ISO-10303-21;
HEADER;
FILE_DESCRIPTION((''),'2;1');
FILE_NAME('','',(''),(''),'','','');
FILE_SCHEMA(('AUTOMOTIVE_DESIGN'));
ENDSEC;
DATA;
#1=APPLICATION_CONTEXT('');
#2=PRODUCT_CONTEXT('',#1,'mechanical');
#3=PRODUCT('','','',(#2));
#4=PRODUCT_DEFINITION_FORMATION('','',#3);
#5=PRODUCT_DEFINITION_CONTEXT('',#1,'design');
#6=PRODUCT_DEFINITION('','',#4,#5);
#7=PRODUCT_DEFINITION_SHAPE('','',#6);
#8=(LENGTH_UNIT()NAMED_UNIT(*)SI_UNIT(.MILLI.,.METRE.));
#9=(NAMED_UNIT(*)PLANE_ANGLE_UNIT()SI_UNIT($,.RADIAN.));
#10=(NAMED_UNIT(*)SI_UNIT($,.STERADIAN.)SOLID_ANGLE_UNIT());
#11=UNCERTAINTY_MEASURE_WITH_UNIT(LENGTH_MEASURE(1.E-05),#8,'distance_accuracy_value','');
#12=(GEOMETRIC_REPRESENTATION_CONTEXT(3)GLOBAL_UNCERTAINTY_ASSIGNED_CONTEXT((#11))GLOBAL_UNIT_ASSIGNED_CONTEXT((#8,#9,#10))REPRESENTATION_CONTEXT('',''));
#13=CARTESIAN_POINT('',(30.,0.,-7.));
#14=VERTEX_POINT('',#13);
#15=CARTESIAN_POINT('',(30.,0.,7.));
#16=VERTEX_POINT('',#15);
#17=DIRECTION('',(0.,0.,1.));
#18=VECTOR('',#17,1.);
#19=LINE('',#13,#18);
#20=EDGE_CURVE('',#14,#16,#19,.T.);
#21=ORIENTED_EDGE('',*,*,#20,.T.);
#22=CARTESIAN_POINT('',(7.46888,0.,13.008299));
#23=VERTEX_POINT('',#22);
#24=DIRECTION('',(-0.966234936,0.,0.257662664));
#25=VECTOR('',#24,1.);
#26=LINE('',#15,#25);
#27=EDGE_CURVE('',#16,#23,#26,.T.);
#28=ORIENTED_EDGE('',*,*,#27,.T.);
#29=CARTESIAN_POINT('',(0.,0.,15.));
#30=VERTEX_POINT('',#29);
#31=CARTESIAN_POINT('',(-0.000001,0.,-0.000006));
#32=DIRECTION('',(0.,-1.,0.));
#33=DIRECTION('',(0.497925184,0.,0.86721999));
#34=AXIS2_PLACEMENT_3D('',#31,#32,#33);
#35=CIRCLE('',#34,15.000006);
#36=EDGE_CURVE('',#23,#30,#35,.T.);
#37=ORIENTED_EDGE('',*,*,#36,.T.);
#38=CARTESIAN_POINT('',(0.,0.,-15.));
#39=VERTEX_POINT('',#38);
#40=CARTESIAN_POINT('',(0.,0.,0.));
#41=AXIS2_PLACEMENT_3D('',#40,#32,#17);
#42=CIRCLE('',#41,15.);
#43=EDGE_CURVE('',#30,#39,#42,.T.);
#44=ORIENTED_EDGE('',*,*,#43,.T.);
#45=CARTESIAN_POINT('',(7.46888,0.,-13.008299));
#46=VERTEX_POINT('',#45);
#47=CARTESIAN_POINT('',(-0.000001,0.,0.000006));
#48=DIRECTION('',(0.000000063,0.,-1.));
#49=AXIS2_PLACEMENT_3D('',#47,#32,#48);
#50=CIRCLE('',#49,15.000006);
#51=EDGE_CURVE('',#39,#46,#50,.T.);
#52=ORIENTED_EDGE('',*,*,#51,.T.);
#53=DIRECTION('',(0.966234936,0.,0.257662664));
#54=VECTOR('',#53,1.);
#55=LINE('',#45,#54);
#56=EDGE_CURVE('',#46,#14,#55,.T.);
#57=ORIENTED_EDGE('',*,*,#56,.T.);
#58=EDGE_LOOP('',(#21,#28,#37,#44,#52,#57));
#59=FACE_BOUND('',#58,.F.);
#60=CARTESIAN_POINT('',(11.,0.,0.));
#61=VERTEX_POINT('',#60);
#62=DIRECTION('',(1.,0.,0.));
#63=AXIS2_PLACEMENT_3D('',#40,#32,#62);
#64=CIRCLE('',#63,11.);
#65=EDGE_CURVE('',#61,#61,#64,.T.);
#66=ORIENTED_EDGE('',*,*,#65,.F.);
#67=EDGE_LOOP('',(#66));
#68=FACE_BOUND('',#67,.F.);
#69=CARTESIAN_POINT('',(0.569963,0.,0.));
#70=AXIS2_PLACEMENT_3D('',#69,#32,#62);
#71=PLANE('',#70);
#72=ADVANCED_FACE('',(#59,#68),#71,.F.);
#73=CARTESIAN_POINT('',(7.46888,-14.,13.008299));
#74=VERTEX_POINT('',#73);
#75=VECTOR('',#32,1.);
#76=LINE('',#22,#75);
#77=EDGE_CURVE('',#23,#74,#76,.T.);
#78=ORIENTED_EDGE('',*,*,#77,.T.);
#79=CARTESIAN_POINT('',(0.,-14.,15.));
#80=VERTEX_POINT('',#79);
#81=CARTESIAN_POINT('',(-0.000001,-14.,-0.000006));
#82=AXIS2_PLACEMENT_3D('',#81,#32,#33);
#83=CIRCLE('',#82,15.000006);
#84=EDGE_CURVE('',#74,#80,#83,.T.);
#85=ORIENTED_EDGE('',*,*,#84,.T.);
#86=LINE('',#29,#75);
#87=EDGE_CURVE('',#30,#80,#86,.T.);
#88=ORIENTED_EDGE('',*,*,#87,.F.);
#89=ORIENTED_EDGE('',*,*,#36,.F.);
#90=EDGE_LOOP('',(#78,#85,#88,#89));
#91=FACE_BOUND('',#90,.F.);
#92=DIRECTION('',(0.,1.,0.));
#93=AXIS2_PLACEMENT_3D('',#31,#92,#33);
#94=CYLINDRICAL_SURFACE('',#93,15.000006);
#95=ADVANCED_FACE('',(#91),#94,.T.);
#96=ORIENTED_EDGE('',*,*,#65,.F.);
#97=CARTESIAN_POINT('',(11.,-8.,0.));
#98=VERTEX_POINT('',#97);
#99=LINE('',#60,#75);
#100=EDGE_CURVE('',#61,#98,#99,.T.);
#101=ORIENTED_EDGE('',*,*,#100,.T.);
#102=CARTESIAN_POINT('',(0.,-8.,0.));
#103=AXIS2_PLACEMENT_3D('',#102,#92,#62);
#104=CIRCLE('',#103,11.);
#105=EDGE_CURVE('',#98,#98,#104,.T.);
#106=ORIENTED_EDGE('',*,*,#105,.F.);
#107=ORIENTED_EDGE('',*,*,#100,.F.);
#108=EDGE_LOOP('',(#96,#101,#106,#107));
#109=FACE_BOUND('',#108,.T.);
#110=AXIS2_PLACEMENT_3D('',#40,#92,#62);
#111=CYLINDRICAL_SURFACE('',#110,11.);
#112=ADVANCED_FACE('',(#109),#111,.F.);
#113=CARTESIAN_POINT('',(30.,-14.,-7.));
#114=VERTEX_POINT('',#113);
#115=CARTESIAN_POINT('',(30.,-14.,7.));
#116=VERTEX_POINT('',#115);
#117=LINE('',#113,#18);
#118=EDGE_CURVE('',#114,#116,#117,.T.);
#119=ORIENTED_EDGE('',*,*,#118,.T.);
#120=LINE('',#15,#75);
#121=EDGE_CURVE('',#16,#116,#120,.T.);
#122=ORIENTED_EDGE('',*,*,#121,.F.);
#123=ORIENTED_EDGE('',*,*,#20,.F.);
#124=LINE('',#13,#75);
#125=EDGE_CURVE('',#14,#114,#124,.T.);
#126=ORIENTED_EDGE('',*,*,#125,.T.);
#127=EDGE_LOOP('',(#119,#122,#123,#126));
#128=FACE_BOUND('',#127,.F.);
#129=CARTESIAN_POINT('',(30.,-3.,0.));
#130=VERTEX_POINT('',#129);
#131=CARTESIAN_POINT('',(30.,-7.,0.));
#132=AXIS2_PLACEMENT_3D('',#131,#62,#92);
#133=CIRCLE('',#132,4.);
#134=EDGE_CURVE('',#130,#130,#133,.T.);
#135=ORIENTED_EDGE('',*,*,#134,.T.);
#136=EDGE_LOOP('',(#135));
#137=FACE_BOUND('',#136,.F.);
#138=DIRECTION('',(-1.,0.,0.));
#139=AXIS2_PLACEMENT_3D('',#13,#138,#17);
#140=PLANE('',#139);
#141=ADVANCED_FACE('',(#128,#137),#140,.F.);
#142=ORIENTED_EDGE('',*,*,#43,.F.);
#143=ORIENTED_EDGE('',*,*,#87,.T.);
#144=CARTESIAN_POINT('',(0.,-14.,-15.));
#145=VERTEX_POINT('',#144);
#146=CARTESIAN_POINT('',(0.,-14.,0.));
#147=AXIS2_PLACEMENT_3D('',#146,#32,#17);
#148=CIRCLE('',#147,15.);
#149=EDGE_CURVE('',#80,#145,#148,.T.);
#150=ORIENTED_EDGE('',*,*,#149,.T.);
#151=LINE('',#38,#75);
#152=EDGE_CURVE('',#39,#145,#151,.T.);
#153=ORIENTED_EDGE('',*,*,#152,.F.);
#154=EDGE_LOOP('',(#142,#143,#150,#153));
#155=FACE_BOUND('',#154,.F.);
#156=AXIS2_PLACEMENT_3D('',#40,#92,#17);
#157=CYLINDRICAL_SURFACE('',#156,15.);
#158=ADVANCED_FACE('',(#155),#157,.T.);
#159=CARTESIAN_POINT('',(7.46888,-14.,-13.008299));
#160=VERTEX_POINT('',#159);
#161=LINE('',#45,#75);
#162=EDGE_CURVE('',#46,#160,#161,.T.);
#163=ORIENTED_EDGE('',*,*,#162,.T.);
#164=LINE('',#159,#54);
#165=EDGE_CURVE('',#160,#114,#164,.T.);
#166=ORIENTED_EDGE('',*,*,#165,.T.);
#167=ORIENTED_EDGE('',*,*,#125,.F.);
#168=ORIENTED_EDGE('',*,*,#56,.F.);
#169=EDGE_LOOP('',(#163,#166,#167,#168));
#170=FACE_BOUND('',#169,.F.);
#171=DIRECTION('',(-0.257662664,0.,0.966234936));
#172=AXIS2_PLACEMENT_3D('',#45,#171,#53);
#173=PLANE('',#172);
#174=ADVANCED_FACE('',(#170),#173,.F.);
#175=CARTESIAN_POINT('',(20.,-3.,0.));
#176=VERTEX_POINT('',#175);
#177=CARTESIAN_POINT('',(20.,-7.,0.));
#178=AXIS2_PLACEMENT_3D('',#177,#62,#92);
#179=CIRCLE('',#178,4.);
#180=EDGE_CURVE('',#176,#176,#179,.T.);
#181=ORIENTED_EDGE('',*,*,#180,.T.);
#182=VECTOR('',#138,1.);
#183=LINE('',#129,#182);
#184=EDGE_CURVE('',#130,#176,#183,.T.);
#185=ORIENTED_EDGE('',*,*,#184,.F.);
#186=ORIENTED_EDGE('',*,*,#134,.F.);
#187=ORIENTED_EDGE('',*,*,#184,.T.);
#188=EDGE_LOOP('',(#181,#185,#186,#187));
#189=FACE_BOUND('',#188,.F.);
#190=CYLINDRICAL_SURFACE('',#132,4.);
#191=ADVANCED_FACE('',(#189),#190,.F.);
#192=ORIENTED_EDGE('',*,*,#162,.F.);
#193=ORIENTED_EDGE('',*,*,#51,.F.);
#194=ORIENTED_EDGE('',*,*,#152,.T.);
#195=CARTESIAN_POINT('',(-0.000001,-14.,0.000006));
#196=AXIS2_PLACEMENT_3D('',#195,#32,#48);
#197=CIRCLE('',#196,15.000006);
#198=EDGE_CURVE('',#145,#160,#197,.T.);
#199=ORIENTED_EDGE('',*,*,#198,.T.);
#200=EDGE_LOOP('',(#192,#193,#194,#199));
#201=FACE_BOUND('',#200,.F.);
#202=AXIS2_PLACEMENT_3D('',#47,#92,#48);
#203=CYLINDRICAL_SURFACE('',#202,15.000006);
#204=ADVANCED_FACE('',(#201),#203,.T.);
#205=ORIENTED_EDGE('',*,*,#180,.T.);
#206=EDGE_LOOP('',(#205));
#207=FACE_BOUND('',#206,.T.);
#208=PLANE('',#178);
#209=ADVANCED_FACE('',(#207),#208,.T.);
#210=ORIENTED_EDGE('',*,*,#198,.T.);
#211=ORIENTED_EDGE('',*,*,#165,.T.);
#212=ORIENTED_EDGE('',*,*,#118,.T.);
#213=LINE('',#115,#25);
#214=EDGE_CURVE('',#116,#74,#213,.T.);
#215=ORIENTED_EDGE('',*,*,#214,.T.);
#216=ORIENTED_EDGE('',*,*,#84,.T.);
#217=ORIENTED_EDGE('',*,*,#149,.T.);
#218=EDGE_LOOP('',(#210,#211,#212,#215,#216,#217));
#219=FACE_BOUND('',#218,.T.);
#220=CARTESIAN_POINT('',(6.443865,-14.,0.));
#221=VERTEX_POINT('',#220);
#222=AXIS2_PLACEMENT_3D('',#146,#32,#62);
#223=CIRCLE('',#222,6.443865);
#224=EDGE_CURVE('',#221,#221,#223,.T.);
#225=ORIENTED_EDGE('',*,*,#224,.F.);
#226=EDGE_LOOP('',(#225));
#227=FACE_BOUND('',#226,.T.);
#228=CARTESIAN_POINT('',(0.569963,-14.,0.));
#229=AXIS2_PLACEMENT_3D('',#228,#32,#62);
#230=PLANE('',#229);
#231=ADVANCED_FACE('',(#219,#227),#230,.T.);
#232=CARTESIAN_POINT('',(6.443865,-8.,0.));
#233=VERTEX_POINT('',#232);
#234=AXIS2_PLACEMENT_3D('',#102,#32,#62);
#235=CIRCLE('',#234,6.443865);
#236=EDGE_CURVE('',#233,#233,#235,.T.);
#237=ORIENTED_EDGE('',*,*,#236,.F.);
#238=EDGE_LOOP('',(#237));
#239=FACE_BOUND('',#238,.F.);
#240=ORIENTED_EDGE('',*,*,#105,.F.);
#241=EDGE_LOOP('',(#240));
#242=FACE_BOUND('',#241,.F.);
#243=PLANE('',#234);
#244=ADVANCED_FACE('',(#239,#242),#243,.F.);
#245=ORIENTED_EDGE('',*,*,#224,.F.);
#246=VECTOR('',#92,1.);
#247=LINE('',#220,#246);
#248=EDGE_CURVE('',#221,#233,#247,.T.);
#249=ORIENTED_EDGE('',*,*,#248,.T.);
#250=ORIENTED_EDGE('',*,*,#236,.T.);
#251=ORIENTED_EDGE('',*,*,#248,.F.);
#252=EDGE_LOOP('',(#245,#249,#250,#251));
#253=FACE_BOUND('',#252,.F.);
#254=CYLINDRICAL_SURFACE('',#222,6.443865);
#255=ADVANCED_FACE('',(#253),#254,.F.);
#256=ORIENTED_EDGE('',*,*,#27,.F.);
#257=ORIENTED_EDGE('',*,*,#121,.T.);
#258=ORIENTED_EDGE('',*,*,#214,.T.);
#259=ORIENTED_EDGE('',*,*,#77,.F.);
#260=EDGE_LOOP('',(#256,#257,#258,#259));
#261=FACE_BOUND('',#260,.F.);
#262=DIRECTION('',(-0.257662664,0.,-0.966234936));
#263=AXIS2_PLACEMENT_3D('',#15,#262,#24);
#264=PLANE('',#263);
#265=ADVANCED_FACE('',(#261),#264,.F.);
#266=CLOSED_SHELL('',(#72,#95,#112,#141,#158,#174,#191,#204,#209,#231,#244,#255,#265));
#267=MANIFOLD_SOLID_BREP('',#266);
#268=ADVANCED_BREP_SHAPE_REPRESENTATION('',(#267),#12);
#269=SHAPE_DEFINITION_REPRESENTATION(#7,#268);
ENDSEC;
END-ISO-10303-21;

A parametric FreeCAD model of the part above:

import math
import FreeCAD as App
import Part
import Sketcher
from FreeCAD import Vector

doc = App.newDocument("Part")
body = doc.addObject("PartDesign::Body", "Body")

# Sketch on XZ plane
sketch1 = doc.addObject("Sketcher::SketchObject", "Sketch")
body.addObject(sketch1)
sketch1.AttachmentSupport = (doc.XZ_Plane, [""])
sketch1.MapMode = "FlatFace"
sketch1.addGeometry([
    Part.ArcOfCircle(Part.Circle(Vector(0, 0, 0), Vector(0, 0, 1), 15), math.radians(60), math.radians(90)),  # 0
    Part.ArcOfCircle(Part.Circle(Vector(0, 0, 0), Vector(0, 0, 1), 15), math.radians(90), math.radians(270)),  # 1
    Part.ArcOfCircle(Part.Circle(Vector(0, 0, 0), Vector(0, 0, 1), 15), math.radians(-90), math.radians(-60)),  # 2
    Part.LineSegment(Vector(7, -13, 0), Vector(30, -7, 0)),  # 3
    Part.LineSegment(Vector(30, -7, 0), Vector(30, 7, 0)),  # 4
    Part.LineSegment(Vector(30, 7, 0), Vector(7, 13, 0)),  # 5
    Part.Circle(Vector(0, 0, 0), Vector(0, 0, 1), 11),  # 6
], False)
sketch1.addConstraint([
    Sketcher.Constraint("Tangent", 0, 2, 1, 1),
    Sketcher.Constraint("Tangent", 1, 2, 2, 1),
    Sketcher.Constraint("Coincident", 2, 2, 3, 1),
    Sketcher.Constraint("Coincident", 3, 2, 4, 1),
    Sketcher.Constraint("Coincident", 4, 2, 5, 1),
    Sketcher.Constraint("Coincident", 5, 2, 0, 1),
    Sketcher.Constraint("Vertical", 4),
    Sketcher.Constraint("Coincident", 0, 3, -1, 1),
    Sketcher.Constraint("Coincident", 6, 3, -1, 1),
    Sketcher.Constraint("Equal", 0, 2),
    Sketcher.Constraint("Symmetric", 0, 2, 1, 2, -1, 1),
    Sketcher.Constraint("PointOnObject", 0, 2, -2),
    Sketcher.Constraint("Vertical", 2, 2, 5, 2),
    Sketcher.Constraint("Equal", 3, 5),
    Sketcher.Constraint("Diameter", 6, 22.0),
    Sketcher.Constraint("Radius", 1, 15.0),
    Sketcher.Constraint("DistanceY", 4, 1, 4, 2, 14.0),
    Sketcher.Constraint("DistanceX", -1, 1, 3, 2, 30.0),
    Sketcher.Constraint("DistanceY", 2, 2, -1, 1, 13.008299),
])
pad1 = doc.addObject("PartDesign::Pad", "Pad")
body.addObject(pad1)
pad1.Profile = sketch1
pad1.Length = 14

# Sketch on YZ plane
sketch2 = doc.addObject("Sketcher::SketchObject", "Sketch001")
body.addObject(sketch2)
sketch2.AttachmentSupport = (doc.YZ_Plane, [""])
sketch2.MapMode = "FlatFace"
sketch2.AttachmentOffset = App.Placement(Vector(0, 0, 30), App.Rotation())
sketch2.addGeometry(Part.Circle(Vector(-7, 0, 0), Vector(0, 0, 1), 4), False)
sketch2.addConstraint([
    Sketcher.Constraint("PointOnObject", 0, 3, -1),
    Sketcher.Constraint("Diameter", 0, 8.0),
    Sketcher.Constraint("DistanceX", 0, 3, -1, 1, 7.0),
])
pocket1 = doc.addObject("PartDesign::Pocket", "Pocket")
body.addObject(pocket1)
pocket1.Profile = sketch2
pocket1.Length = 10

# Sketch on XZ plane
sketch3 = doc.addObject("Sketcher::SketchObject", "Sketch002")
body.addObject(sketch3)
sketch3.AttachmentSupport = (doc.XZ_Plane, [""])
sketch3.MapMode = "FlatFace"
sketch3.AttachmentOffset = App.Placement(Vector(0, 0, 14), App.Rotation())
sketch3.addGeometry([
    Part.Circle(Vector(0, 0, 0), Vector(0, 0, 1), 11),
    Part.Circle(Vector(0, 0, 0), Vector(0, 0, 1), 6),
], False)
sketch3.addConstraint([
    Sketcher.Constraint("Coincident", 0, 3, -1, 1),
    Sketcher.Constraint("Coincident", 1, 3, -1, 1),
    Sketcher.Constraint("Diameter", 0, 22.549488),
    Sketcher.Constraint("Diameter", 1, 12.88773),
])
pad2 = doc.addObject("PartDesign::Pad", "Pad001")
body.addObject(pad2)
pad2.Profile = sketch3
pad2.Length = 6
pad2.Reversed = True

doc.recompute()
